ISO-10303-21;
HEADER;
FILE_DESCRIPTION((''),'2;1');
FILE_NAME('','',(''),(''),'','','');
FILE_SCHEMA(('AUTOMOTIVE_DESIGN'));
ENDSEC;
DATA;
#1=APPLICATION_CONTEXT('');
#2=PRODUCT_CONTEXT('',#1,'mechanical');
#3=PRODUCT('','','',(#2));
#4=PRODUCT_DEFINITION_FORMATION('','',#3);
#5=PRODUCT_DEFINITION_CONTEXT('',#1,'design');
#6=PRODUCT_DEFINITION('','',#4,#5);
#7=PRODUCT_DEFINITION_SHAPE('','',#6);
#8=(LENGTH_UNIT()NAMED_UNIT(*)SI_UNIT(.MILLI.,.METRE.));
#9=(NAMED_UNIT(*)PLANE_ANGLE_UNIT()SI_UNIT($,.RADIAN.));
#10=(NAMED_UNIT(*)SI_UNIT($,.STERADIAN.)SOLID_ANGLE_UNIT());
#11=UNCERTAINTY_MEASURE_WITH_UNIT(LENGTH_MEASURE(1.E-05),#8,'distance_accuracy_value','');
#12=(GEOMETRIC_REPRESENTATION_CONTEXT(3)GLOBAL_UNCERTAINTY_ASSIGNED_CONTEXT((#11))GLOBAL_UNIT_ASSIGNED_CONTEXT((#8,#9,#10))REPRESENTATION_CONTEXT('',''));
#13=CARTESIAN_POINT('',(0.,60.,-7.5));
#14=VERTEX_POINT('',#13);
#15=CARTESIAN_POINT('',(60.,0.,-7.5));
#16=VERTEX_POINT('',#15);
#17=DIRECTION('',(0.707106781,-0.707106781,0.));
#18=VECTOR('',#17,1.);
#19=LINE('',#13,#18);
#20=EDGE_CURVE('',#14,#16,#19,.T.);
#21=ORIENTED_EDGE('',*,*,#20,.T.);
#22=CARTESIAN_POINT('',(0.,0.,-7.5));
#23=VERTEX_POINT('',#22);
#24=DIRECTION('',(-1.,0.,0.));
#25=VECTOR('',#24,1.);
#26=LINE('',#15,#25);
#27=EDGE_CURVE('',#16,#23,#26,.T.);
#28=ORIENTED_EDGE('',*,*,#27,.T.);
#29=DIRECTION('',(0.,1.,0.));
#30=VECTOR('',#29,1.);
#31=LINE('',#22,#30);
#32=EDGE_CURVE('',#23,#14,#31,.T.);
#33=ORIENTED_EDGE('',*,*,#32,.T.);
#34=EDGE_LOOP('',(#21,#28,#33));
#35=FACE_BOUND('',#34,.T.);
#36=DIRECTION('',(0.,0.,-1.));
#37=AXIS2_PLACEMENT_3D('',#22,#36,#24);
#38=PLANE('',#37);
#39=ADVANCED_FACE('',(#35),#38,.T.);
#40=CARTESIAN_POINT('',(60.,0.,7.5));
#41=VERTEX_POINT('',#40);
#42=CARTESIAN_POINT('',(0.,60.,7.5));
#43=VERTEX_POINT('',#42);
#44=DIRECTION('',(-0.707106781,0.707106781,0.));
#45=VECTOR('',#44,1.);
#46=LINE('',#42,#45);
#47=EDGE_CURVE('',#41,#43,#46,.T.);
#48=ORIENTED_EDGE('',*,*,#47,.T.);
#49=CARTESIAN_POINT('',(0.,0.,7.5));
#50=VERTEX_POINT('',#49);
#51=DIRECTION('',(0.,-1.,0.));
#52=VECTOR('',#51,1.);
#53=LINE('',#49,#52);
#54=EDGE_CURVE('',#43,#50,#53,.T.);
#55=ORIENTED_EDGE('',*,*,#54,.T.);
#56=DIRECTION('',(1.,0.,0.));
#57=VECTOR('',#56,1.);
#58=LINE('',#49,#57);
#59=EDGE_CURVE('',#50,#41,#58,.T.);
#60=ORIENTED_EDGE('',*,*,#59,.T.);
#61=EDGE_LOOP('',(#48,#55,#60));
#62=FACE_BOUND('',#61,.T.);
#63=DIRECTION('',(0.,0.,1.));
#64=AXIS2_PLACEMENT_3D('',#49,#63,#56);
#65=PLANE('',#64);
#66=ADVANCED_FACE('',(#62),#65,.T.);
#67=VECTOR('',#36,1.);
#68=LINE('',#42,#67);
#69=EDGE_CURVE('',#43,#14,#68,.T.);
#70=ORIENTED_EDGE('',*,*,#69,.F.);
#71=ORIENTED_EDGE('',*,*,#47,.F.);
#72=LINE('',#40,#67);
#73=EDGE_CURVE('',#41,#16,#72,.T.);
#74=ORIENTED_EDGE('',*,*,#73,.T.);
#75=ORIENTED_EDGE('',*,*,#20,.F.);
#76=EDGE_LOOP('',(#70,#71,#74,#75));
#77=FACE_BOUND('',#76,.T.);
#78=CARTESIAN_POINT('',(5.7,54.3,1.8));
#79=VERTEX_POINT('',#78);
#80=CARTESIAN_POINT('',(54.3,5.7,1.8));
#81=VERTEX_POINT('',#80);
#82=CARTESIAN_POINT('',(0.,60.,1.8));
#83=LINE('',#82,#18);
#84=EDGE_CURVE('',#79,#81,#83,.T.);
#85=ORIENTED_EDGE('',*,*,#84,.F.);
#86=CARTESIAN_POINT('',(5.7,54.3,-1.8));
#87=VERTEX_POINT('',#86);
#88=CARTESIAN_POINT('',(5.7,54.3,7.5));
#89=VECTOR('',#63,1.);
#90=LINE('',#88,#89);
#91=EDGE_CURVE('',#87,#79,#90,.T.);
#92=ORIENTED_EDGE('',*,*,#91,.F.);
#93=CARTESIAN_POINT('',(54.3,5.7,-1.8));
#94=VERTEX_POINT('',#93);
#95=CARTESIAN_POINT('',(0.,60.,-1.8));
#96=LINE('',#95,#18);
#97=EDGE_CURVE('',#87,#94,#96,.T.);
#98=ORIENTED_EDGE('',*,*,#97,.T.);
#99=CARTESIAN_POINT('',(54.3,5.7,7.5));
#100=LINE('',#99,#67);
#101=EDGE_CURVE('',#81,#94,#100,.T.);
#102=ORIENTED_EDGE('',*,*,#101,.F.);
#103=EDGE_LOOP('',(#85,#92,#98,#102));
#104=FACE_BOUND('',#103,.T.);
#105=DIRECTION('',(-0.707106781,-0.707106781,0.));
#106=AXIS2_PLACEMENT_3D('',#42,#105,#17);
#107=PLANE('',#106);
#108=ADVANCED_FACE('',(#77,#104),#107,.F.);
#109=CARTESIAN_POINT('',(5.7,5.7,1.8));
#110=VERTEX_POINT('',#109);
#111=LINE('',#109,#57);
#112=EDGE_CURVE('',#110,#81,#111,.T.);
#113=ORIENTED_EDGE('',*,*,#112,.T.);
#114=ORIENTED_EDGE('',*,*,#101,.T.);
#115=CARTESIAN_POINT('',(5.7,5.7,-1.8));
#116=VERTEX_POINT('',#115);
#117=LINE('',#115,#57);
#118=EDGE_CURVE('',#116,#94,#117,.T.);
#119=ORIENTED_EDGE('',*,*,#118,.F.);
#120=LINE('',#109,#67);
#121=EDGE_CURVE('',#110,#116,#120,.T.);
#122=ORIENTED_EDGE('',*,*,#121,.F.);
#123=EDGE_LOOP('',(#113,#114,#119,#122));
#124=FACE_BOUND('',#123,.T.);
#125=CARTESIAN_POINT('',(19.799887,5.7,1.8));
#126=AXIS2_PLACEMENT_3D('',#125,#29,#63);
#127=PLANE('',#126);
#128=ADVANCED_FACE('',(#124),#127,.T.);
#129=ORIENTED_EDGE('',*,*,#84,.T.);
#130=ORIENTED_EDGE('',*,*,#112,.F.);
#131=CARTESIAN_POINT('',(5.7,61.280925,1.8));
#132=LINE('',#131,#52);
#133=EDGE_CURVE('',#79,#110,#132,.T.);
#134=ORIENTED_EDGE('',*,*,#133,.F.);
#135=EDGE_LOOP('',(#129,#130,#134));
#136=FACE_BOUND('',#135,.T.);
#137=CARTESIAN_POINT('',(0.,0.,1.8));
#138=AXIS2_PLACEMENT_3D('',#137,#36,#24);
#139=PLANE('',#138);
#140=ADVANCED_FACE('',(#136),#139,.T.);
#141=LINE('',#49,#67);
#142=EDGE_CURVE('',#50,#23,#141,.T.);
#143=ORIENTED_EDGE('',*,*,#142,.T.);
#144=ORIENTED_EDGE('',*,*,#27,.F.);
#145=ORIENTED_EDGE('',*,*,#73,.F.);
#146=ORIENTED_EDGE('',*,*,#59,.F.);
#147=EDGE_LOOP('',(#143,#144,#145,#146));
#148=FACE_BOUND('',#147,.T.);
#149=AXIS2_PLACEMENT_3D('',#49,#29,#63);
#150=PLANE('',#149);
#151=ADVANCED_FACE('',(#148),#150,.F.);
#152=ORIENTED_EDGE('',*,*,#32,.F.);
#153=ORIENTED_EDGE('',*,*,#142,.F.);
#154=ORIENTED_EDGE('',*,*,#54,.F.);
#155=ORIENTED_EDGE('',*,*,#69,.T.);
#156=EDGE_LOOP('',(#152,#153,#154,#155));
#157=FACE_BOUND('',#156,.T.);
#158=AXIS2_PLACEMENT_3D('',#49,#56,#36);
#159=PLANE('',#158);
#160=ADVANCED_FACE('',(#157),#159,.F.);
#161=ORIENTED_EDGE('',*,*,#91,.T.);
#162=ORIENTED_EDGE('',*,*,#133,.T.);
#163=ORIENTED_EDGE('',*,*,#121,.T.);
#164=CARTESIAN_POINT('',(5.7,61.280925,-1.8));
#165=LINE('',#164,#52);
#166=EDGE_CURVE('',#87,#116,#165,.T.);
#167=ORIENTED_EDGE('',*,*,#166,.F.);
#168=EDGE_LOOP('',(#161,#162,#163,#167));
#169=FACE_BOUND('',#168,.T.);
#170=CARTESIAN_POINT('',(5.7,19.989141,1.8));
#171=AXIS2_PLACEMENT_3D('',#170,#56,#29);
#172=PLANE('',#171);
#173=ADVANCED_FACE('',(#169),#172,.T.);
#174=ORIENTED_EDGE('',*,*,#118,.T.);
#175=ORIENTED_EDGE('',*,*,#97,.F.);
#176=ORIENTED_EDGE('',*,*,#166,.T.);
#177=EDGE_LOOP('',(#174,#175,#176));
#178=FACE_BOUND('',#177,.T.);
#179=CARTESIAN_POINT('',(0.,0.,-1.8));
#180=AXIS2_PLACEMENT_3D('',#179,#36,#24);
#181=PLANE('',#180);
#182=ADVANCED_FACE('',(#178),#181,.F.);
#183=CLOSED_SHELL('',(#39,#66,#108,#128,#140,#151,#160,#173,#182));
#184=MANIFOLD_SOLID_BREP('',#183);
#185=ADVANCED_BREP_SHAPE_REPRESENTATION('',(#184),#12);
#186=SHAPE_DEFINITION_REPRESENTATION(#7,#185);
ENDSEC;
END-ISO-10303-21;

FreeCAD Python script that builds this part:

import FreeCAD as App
import Part
import Sketcher

V = App.Vector
Q = App.Units.Quantity


def add_polygon(sketch, points):
    """Adds a closed chain of lines whose ends are joined by coincident constraints."""
    first, n = sketch.GeometryCount, len(points)
    for a, b in zip(points, points[1:] + points[:1]):
        sketch.addGeometry(Part.LineSegment(App.Vector(*a, 0), App.Vector(*b, 0)), False)
    for i in range(n):
        sketch.addConstraint(Sketcher.Constraint("Coincident", first + i, 2, first + (i + 1) % n, 1))

doc = App.newDocument("Part")
body = doc.addObject("PartDesign::Body", "Body")

sketch1 = body.newObject("Sketcher::SketchObject", "Sketch")
sketch1.AttachmentSupport = (doc.getObject("XY_Plane"), [""])
sketch1.MapMode = "FlatFace"
add_polygon(sketch1, [(0, 60), (0, 0), (60, 0)])
sketch1.addConstraint(Sketcher.Constraint("Vertical", 0))
sketch1.addConstraint(Sketcher.Constraint("Horizontal", 1))
sketch1.addConstraint(Sketcher.Constraint("Coincident", 0, 2, -1, 1))
sketch1.addConstraint(Sketcher.Constraint("Equal", 1, 0))
sketch1.addConstraint(Sketcher.Constraint("DistanceX", 1, 1, 1, 2, Q("60 mm")))
pad1 = body.newObject("PartDesign::Pad", "Pad")
pad1.Profile = sketch1
pad1.Length = 7.5

sketch2 = body.newObject("Sketcher::SketchObject", "Sketch001")
sketch2.AttachmentSupport = (doc.getObject("XY_Plane"), [""])
sketch2.MapMode = "FlatFace"
add_polygon(sketch2, [(60, 0), (0, 0), (0, 60)])
sketch2.addConstraint(Sketcher.Constraint("Horizontal", 0))
sketch2.addConstraint(Sketcher.Constraint("Vertical", 1))
sketch2.addConstraint(Sketcher.Constraint("Coincident", 0, 2, -1, 1))
sketch2.addConstraint(Sketcher.Constraint("Equal", 0, 1))
sketch2.addConstraint(Sketcher.Constraint("DistanceX", 0, 2, 0, 1, Q("60 mm")))
pad2 = body.newObject("PartDesign::Pad", "Pad001")
pad2.Profile = sketch2
pad2.Length = 7.5
pad2.Reversed = True

sketch3 = body.newObject("Sketcher::SketchObject", "Sketch002")
sketch3.AttachmentSupport = (doc.getObject("XY_Plane"), [""])
sketch3.MapMode = "FlatFace"
add_polygon(sketch3, [(65, 6), (6, 61), (6, 6)])
sketch3.addConstraint(Sketcher.Constraint("Vertical", 1))
sketch3.addConstraint(Sketcher.Constraint("Horizontal", 2))
sketch3.addConstraint(Sketcher.Constraint("DistanceX", -1, 1, 0, 2, Q("5.7 mm")))
sketch3.addConstraint(Sketcher.Constraint("DistanceY", -1, 1, 1, 2, Q("5.7 mm")))
sketch3.addConstraint(Sketcher.Constraint("DistanceX", 2, 1, 2, 2, Q("59.710745 mm")))
sketch3.addConstraint(Sketcher.Constraint("DistanceY", 1, 2, 1, 1, Q("55.580925 mm")))
pocket1 = body.newObject("PartDesign::Pocket", "Pocket")
pocket1.Profile = sketch3
pocket1.Type = "TwoLengths"
pocket1.Length = 1.8
pocket1.Length2 = 1.8
pocket1.Reversed = True

doc.recompute()
